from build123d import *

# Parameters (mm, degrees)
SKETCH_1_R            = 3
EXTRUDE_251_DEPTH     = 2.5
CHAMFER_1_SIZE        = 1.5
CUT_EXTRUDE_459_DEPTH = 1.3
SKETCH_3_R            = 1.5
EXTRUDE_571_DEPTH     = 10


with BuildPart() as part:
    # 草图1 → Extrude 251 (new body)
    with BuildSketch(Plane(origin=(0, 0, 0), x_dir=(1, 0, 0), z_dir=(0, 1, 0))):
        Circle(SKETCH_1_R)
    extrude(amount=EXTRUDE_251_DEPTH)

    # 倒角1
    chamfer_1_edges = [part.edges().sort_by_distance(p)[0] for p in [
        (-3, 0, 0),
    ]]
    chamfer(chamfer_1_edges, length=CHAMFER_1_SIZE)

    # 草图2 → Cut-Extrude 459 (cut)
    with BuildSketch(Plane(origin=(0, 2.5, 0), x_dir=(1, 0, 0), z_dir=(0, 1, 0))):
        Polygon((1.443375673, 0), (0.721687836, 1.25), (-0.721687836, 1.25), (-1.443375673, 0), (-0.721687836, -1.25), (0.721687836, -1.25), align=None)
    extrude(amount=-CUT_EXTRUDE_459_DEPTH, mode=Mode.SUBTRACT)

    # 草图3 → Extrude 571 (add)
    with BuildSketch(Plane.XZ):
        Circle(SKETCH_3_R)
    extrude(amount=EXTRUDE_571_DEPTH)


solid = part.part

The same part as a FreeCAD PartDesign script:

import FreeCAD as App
import Part
import Sketcher

V = App.Vector
Q = App.Units.Quantity


def edges_at(feature, points):
    """Names of the edges that pass closest to the given points."""
    edges = feature.Shape.Edges
    near = lambda p: min(range(len(edges)), key=lambda i: edges[i].distToShape(Part.Vertex(*p))[0])
    return sorted({f"Edge{near(p) + 1}" for p in points})


def add_polygon(sketch, points):
    """Adds a closed chain of lines whose ends are joined by coincident constraints."""
    first, n = sketch.GeometryCount, len(points)
    for a, b in zip(points, points[1:] + points[:1]):
        sketch.addGeometry(Part.LineSegment(App.Vector(*a, 0), App.Vector(*b, 0)), False)
    for i in range(n):
        sketch.addConstraint(Sketcher.Constraint("Coincident", first + i, 2, first + (i + 1) % n, 1))

doc = App.newDocument("Part")
body = doc.addObject("PartDesign::Body", "Body")

sketch1 = body.newObject("Sketcher::SketchObject", "Sketch")
sketch1.AttachmentSupport = (doc.getObject("XZ_Plane"), [""])
sketch1.MapMode = "FlatFace"
sketch1.addGeometry(Part.Circle(V(0, 0, 0), V(0, 0, 1), 3), False)
sketch1.addConstraint([
    Sketcher.Constraint("Coincident", 0, 3, -1, 1),
    Sketcher.Constraint("Diameter", 0, Q("6 mm")),
])
pad1 = body.newObject("PartDesign::Pad", "Pad")
pad1.Profile = sketch1
pad1.Length = 2.5
pad1.Reversed = True
doc.recompute()

chamfer = body.newObject("PartDesign::Chamfer", "Chamfer")
chamfer.Base = (pad1, edges_at(pad1, [(-3, 0, 0)]))
chamfer.Size = 1.5

sketch2 = body.newObject("Sketcher::SketchObject", "Sketch001")
sketch2.AttachmentSupport = (doc.getObject("XZ_Plane"), [""])
sketch2.MapMode = "FlatFace"
sketch2.AttachmentOffset = App.Placement(V(0, 0, -2.5), App.Rotation())
add_polygon(sketch2, [(1.443376, 0), (0.721688, -1.25), (-0.721688, -1.25), (-1.443376, 0), (-0.721688, 1.25), (0.721688, 1.25)])
sketch2.addConstraint([
    Sketcher.Constraint("Horizontal", 1),
    Sketcher.Constraint("Horizontal", 4),
    Sketcher.Constraint("Symmetric", 0, 2, 3, 2, -1, 1),
    Sketcher.Constraint("Symmetric", 2, 2, 5, 2, -1, 1),
    Sketcher.Constraint("PointOnObject", 2, 2, -1),
    Sketcher.Constraint("Parallel", 2, 5),
    Sketcher.Constraint("Vertical", 1, 2, 3, 2),
    Sketcher.Constraint("Angle", 0, Q("-120 deg")),
    Sketcher.Constraint("DistanceY", 1, 2, 3, 2, Q("2.5 mm")),
    Sketcher.Constraint("DistanceX", 1, 2, 1, 1, Q("1.443376 mm")),
])
pocket1 = body.newObject("PartDesign::Pocket", "Pocket")
pocket1.Profile = sketch2
pocket1.Length = 1.3
pocket1.Reversed = True

sketch3 = body.newObject("Sketcher::SketchObject", "Sketch002")
sketch3.AttachmentSupport = (doc.getObject("XZ_Plane"), [""])
sketch3.MapMode = "FlatFace"
sketch3.addGeometry(Part.Circle(V(0, 0, 0), V(0, 0, 1), 1.5), False)
sketch3.addConstraint([
    Sketcher.Constraint("Coincident", 0, 3, -1, 1),
    Sketcher.Constraint("Diameter", 0, Q("3 mm")),
])
pad2 = body.newObject("PartDesign::Pad", "Pad001")
pad2.Profile = sketch3
pad2.Length = 10

doc.recompute()
